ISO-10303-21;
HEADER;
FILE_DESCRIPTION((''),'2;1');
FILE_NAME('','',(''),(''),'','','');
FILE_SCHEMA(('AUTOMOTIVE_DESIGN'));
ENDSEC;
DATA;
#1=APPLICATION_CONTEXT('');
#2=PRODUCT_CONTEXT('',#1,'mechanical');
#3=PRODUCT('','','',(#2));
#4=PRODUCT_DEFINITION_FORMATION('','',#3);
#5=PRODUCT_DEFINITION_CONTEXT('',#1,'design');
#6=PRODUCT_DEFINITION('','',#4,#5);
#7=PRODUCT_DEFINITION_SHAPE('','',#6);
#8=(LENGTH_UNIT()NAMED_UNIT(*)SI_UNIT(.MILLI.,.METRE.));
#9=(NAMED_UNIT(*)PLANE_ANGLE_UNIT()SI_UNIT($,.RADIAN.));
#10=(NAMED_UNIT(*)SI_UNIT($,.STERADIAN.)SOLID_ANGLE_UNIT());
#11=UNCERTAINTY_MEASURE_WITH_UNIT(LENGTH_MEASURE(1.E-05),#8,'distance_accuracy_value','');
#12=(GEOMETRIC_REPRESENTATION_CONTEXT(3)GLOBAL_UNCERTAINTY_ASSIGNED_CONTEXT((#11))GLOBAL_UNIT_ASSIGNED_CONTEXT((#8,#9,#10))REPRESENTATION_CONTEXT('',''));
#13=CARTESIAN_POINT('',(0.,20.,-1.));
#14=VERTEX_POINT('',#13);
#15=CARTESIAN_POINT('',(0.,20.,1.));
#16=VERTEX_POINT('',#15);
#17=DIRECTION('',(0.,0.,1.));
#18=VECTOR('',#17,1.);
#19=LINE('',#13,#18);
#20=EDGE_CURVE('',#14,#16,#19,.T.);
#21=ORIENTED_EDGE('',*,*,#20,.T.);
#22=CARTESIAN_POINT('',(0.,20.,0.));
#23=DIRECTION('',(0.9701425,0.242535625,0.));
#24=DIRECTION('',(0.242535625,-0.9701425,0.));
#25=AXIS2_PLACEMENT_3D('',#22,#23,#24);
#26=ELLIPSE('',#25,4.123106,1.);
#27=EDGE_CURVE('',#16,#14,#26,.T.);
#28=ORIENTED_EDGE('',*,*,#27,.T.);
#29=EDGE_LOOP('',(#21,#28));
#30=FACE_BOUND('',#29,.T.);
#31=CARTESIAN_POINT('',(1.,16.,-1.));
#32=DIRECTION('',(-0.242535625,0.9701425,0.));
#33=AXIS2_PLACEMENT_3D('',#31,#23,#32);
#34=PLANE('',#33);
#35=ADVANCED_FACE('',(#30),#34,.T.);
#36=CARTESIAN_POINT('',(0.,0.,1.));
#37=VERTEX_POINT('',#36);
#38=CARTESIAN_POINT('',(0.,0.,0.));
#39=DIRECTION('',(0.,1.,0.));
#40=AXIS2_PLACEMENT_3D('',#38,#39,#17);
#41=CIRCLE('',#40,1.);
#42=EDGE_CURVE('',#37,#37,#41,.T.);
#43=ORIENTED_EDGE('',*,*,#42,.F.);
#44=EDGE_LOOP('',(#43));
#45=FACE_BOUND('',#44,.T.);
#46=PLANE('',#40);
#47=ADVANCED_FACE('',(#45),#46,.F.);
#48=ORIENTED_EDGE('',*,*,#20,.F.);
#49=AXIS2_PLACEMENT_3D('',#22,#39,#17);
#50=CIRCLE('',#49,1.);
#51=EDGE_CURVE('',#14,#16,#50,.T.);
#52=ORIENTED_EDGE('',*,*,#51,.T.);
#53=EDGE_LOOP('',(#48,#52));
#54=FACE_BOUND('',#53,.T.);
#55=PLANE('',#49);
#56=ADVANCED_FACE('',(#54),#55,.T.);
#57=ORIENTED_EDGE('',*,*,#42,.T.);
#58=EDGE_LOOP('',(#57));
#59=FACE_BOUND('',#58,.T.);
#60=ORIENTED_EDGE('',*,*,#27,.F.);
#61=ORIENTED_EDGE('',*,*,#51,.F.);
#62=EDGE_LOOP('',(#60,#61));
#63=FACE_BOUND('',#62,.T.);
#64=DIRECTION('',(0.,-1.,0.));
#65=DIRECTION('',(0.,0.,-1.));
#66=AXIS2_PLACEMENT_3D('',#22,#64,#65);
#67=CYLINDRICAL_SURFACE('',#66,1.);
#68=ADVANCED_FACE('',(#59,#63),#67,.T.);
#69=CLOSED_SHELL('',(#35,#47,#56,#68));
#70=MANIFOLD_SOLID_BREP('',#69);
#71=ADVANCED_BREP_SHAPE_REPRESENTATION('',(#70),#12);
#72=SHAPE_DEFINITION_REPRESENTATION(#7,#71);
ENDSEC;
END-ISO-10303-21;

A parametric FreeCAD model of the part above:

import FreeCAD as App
import Part
import Sketcher
from FreeCAD import Vector
Q = App.Units.Quantity

doc = App.newDocument("Part")
body = doc.addObject("PartDesign::Body", "Body")

sketch1 = doc.addObject("Sketcher::SketchObject", "Sketch")
body.addObject(sketch1)
sketch1.AttachmentSupport = (doc.XZ_Plane, [""])
sketch1.MapMode = "FlatFace"
sketch1.addGeometry(Part.Circle(Vector(0, 0, 0), Vector(0, 0, 1), 1), False)
sketch1.addConstraint([
    Sketcher.Constraint("Coincident", 0, 3, -1, 1),
    Sketcher.Constraint("Diameter", 0, Q("2 mm")),
])
pad1 = doc.addObject("PartDesign::Pad", "Pad")
body.addObject(pad1)
pad1.Profile = sketch1
pad1.Length = 20
pad1.Reversed = True

sketch2 = doc.addObject("Sketcher::SketchObject", "Sketch001")
body.addObject(sketch2)
sketch2.AttachmentSupport = (doc.XY_Plane, [""])
sketch2.MapMode = "FlatFace"
sketch2.addGeometry([
    Part.LineSegment(Vector(1, 16, 0), Vector(1, 20, 0)),
    Part.LineSegment(Vector(1, 20, 0), Vector(0, 20, 0)),
    Part.LineSegment(Vector(0, 20, 0), Vector(1, 16, 0)),
], False)
sketch2.addConstraint([
    Sketcher.Constraint("Coincident", 0, 2, 1, 1),
    Sketcher.Constraint("Coincident", 1, 2, 2, 1),
    Sketcher.Constraint("Coincident", 2, 2, 0, 1),
    Sketcher.Constraint("Vertical", 0),
    Sketcher.Constraint("Horizontal", 1),
    Sketcher.Constraint("PointOnObject", 1, 2, -2),
    Sketcher.Constraint("DistanceX", 1, 2, 1, 1, Q("1 mm")),
    Sketcher.Constraint("DistanceY", 0, 1, 0, 2, Q("4 mm")),
    Sketcher.Constraint("DistanceY", -1, 1, 0, 2, Q("20 mm")),
])
pocket1 = doc.addObject("PartDesign::Pocket", "Pocket")
body.addObject(pocket1)
pocket1.Profile = sketch2
pocket1.Type = "ThroughAll"
pocket1.Midplane = True

doc.recompute()
